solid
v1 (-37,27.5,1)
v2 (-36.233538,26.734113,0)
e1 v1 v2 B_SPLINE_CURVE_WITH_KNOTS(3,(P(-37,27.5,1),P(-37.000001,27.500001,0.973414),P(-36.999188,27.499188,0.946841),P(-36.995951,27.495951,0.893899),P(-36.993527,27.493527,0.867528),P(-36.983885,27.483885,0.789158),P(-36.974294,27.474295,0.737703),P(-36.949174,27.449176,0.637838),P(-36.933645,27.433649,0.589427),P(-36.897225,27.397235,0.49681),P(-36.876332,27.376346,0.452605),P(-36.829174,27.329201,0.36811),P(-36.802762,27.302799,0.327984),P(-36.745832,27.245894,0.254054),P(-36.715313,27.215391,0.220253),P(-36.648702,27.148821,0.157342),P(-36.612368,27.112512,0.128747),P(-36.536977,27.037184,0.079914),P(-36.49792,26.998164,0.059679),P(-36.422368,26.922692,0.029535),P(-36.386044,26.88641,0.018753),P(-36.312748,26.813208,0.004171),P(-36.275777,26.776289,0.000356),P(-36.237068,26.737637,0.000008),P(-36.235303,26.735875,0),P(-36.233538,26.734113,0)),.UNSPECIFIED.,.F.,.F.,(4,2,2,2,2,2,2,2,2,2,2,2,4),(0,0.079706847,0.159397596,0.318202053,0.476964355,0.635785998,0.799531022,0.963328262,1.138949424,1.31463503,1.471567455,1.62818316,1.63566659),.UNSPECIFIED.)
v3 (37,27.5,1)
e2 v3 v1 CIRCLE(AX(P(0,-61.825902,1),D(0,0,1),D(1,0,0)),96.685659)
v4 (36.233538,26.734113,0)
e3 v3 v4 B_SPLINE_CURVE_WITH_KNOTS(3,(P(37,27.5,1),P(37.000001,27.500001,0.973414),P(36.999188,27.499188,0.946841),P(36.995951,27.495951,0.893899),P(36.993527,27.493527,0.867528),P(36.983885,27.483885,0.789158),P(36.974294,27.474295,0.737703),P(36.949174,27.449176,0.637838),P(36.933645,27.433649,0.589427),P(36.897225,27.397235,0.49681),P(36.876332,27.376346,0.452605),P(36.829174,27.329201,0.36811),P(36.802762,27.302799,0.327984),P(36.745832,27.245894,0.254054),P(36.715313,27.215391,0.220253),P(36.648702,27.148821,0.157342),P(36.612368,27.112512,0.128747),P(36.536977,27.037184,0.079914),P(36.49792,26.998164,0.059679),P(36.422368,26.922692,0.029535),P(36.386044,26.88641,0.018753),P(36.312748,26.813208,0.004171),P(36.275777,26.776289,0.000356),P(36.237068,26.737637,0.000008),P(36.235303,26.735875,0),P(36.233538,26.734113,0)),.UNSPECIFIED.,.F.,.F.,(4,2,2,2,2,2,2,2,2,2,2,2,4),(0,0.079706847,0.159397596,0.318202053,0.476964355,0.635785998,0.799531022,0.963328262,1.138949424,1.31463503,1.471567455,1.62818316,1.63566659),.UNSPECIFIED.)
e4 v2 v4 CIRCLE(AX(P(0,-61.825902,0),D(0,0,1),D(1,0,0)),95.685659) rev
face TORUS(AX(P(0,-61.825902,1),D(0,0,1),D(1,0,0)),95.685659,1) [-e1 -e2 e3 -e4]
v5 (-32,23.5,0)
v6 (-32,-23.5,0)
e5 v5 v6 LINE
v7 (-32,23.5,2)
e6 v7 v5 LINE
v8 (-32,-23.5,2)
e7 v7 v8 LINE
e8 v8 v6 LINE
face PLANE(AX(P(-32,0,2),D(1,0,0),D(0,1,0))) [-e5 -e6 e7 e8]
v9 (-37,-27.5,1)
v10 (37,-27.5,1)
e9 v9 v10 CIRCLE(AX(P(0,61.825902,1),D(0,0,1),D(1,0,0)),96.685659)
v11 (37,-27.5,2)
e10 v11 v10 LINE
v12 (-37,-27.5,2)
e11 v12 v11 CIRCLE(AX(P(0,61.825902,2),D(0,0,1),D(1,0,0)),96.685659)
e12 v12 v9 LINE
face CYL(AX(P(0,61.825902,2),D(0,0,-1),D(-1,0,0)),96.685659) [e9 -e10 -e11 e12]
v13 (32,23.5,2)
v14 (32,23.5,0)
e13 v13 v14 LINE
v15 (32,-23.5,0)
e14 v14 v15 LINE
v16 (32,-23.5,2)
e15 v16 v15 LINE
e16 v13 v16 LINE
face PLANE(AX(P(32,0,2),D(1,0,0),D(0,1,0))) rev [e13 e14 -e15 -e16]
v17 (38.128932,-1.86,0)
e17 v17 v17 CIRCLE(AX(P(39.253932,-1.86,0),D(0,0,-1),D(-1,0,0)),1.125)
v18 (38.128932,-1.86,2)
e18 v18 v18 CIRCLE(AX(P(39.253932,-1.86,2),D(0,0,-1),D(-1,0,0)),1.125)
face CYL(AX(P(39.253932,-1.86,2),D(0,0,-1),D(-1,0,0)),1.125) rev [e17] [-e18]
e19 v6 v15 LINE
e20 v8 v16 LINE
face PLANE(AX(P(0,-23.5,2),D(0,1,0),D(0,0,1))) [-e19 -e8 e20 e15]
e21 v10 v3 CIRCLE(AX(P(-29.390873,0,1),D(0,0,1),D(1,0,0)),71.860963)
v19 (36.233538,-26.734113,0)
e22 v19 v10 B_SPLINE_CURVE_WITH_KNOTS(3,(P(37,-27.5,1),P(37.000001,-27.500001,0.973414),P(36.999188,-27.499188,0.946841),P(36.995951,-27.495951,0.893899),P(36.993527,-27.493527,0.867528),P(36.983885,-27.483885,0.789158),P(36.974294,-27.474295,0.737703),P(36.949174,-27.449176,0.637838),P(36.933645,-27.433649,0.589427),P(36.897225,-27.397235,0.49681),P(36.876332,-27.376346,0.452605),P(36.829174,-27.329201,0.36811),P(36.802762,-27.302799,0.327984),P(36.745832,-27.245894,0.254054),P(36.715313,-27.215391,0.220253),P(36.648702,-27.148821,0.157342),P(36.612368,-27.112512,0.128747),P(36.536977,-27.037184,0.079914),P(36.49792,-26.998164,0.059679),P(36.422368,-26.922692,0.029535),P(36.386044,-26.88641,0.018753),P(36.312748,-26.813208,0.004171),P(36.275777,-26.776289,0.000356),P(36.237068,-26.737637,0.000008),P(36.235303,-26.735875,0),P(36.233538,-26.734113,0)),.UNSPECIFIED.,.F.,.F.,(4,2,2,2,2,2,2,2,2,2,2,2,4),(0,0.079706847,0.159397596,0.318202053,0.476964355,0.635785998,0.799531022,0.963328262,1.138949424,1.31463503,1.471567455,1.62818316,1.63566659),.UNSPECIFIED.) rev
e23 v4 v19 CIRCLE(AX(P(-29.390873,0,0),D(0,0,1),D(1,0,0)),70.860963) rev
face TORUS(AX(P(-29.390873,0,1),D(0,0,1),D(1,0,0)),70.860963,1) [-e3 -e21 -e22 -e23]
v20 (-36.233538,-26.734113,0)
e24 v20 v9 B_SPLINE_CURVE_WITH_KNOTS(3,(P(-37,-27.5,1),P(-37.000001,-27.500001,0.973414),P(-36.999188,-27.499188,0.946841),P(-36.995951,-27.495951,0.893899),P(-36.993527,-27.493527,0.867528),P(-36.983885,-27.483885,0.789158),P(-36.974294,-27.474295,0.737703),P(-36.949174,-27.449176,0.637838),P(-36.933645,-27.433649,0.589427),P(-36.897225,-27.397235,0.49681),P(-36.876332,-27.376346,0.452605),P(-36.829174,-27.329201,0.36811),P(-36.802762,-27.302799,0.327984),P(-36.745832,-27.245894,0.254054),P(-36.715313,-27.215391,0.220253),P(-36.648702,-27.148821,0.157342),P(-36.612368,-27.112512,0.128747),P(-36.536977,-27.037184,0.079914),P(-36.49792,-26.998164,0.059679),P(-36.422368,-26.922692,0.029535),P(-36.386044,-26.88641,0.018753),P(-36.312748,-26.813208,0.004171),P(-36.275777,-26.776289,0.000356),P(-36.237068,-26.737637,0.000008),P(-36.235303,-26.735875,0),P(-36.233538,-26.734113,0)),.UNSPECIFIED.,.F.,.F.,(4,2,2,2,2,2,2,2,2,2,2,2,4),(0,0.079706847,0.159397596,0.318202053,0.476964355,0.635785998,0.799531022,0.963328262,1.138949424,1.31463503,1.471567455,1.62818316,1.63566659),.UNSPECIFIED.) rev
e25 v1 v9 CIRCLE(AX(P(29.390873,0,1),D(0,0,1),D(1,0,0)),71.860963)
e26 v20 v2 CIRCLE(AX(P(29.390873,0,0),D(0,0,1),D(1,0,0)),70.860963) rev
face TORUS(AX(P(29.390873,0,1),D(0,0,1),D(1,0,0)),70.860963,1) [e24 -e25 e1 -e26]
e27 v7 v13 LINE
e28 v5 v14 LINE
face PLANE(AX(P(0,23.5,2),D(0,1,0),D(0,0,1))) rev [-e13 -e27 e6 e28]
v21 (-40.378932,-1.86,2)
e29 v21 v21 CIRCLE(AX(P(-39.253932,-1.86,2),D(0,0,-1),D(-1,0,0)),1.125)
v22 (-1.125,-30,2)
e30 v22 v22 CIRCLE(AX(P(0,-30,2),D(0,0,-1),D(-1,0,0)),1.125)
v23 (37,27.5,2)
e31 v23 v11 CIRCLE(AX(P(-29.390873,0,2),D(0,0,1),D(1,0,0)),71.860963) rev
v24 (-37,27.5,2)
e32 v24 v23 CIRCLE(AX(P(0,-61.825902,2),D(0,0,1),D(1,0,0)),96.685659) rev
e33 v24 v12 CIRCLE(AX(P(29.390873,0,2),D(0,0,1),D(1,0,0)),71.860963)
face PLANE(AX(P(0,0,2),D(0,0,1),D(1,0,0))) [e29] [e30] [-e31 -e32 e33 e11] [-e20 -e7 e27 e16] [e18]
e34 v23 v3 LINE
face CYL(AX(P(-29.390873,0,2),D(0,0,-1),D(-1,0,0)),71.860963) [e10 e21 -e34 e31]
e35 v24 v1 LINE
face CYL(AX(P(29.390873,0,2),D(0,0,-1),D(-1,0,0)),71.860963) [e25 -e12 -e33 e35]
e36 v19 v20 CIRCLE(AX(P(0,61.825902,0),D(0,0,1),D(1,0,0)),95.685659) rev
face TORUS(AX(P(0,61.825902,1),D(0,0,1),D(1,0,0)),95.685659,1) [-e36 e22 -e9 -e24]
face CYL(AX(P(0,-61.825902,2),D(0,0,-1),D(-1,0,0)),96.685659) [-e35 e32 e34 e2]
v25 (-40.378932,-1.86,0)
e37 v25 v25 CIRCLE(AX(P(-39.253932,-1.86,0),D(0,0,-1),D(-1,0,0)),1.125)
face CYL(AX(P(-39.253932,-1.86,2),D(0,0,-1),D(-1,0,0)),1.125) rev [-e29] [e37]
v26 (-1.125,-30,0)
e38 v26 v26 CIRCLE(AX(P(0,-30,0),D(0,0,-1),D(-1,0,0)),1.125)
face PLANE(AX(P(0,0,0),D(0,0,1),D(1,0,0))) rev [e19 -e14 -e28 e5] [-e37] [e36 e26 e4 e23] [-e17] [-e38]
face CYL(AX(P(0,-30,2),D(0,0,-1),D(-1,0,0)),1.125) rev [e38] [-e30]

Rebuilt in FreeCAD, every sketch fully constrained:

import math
import FreeCAD as App
import Part
import Sketcher


def edges_at(feature, points):
    """Names of the edges that pass closest to the given points."""
    edges = feature.Shape.Edges
    near = lambda p: min(range(len(edges)), key=lambda i: edges[i].distToShape(Part.Vertex(*p))[0])
    return sorted({f"Edge{near(p) + 1}" for p in points})

doc = App.newDocument("Part")
body = doc.addObject("PartDesign::Body", "Body")

sketch1 = body.newObject("Sketcher::SketchObject", "Sketch")
sketch1.AttachmentSupport = (doc.getObject("XY_Plane"), [""])
sketch1.MapMode = "FlatFace"
sketch1.addGeometry([
    Part.ArcOfCircle(Part.Circle(App.Vector(-29, 0, 0), App.Vector(0, 0, 1), 72), math.radians(-23), math.radians(23)),
    Part.ArcOfCircle(Part.Circle(App.Vector(0, -62, 0), App.Vector(0, 0, 1), 97), math.radians(68), math.radians(112)),
    Part.ArcOfCircle(Part.Circle(App.Vector(29, 0, 0), App.Vector(0, 0, 1), 72), math.radians(157), math.radians(203)),
    Part.ArcOfCircle(Part.Circle(App.Vector(0, 62, 0), App.Vector(0, 0, 1), 97), math.radians(-112), math.radians(-68)),
    Part.LineSegment(App.Vector(32, -24, 0), App.Vector(-32, -24, 0)),
    Part.LineSegment(App.Vector(-32, -24, 0), App.Vector(-32, 24, 0)),
    Part.LineSegment(App.Vector(-32, 24, 0), App.Vector(32, 24, 0)),
    Part.LineSegment(App.Vector(32, 24, 0), App.Vector(32, -24, 0)),
], False)
sketch1.addConstraint([
    Sketcher.Constraint("Coincident", 0, 2, 1, 1),
    Sketcher.Constraint("Coincident", 1, 2, 2, 1),
    Sketcher.Constraint("Coincident", 2, 2, 3, 1),
    Sketcher.Constraint("Coincident", 3, 2, 0, 1),
    Sketcher.Constraint("Coincident", 4, 2, 5, 1),
    Sketcher.Constraint("Coincident", 5, 2, 6, 1),
    Sketcher.Constraint("Coincident", 6, 2, 7, 1),
    Sketcher.Constraint("Coincident", 7, 2, 4, 1),
    Sketcher.Constraint("Horizontal", 4),
    Sketcher.Constraint("Vertical", 5),
    Sketcher.Constraint("Horizontal", 6),
    Sketcher.Constraint("Vertical", 7),
    Sketcher.Constraint("Equal", 0, 2),
    Sketcher.Constraint("Equal", 1, 3),
    Sketcher.Constraint("Symmetric", 0, 3, 2, 3, -1, 1),
    Sketcher.Constraint("Symmetric", 1, 3, 3, 3, -1, 1),
    Sketcher.Constraint("Symmetric", 4, 2, 6, 2, -1, 1),
    Sketcher.Constraint("Symmetric", 0, 2, 1, 2, -2),
    Sketcher.Constraint("DistanceX", 4, 2, 4, 1, 64.0),
    Sketcher.Constraint("DistanceY", 5, 1, 5, 2, 47.0),
    Sketcher.Constraint("DistanceX", -1, 1, 0, 2, 37.0),
    Sketcher.Constraint("DistanceY", 2, 2, 1, 2, 55.0),
    Sketcher.Constraint("Radius", 1, 96.685659),
    Sketcher.Constraint("Radius", 0, 71.860963),
])
pad1 = body.newObject("PartDesign::Pad", "Pad")
pad1.Profile = sketch1
pad1.Length = 2
doc.recompute()

fillet = body.newObject("PartDesign::Fillet", "Fillet")
fillet.Base = (pad1, edges_at(pad1, [
    (-42.47, 0, 0),
    (0, -34.86, 0),
    (0, 34.86, 0),
    (42.47, 0, 0),
]))
fillet.Radius = 1

sketch2 = body.newObject("Sketcher::SketchObject", "Sketch001")
sketch2.AttachmentSupport = (doc.getObject("XY_Plane"), [""])
sketch2.MapMode = "FlatFace"
sketch2.addGeometry([
    Part.Circle(App.Vector(39.3, -1.9, 0), App.Vector(0, 0, 1), 1.1),
    Part.Circle(App.Vector(0, -30, 0), App.Vector(0, 0, 1), 1.1),
    Part.Circle(App.Vector(-39.3, -1.9, 0), App.Vector(0, 0, 1), 1.1),
], False)
sketch2.addConstraint([
    Sketcher.Constraint("Equal", 0, 1),
    Sketcher.Constraint("Equal", 1, 2),
    Sketcher.Constraint("Symmetric", 0, 3, 2, 3, -2),
    Sketcher.Constraint("PointOnObject", 1, 3, -2),
    Sketcher.Constraint("Diameter", 0, 2.25),
    Sketcher.Constraint("DistanceY", 1, 3, -1, 1, 30.0),
    Sketcher.Constraint("DistanceY", 0, 3, -1, 1, 1.86),
    Sketcher.Constraint("DistanceX", -1, 1, 0, 3, 39.253932),
])
pocket1 = body.newObject("PartDesign::Pocket", "Pocket")
pocket1.Profile = sketch2
pocket1.Type = "ThroughAll"
pocket1.Reversed = True

doc.recompute()
